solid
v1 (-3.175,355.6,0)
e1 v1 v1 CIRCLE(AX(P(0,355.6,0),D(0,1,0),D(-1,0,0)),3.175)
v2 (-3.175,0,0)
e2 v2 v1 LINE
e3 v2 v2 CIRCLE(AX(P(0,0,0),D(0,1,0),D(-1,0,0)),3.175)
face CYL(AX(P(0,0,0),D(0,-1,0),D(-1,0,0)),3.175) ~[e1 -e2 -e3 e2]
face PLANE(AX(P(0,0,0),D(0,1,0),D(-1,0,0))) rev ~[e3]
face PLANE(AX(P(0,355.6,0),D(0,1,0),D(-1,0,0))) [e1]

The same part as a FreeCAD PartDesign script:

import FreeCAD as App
import Part
import Sketcher
Q = App.Units.Quantity

doc = App.newDocument("Part")
body = doc.addObject("PartDesign::Body", "Body")

# Sketch on XZ plane
sketch1 = doc.addObject("Sketcher::SketchObject", "Sketch")
body.addObject(sketch1)
sketch1.AttachmentSupport = (doc.XZ_Plane, [""])
sketch1.MapMode = "FlatFace"
sketch1.addGeometry(Part.Circle(App.Vector(0, 0, 0), App.Vector(0, 0, 1), 3.2), False)
sketch1.addConstraint(Sketcher.Constraint("Coincident", 0, 3, -1, 1))
sketch1.addConstraint(Sketcher.Constraint("Diameter", 0, Q("0.25 in")))
pad1 = doc.addObject("PartDesign::Pad", "Pad")
body.addObject(pad1)
pad1.Profile = sketch1
pad1.Length = Q("14 in")
pad1.Reversed = True

doc.recompute()
